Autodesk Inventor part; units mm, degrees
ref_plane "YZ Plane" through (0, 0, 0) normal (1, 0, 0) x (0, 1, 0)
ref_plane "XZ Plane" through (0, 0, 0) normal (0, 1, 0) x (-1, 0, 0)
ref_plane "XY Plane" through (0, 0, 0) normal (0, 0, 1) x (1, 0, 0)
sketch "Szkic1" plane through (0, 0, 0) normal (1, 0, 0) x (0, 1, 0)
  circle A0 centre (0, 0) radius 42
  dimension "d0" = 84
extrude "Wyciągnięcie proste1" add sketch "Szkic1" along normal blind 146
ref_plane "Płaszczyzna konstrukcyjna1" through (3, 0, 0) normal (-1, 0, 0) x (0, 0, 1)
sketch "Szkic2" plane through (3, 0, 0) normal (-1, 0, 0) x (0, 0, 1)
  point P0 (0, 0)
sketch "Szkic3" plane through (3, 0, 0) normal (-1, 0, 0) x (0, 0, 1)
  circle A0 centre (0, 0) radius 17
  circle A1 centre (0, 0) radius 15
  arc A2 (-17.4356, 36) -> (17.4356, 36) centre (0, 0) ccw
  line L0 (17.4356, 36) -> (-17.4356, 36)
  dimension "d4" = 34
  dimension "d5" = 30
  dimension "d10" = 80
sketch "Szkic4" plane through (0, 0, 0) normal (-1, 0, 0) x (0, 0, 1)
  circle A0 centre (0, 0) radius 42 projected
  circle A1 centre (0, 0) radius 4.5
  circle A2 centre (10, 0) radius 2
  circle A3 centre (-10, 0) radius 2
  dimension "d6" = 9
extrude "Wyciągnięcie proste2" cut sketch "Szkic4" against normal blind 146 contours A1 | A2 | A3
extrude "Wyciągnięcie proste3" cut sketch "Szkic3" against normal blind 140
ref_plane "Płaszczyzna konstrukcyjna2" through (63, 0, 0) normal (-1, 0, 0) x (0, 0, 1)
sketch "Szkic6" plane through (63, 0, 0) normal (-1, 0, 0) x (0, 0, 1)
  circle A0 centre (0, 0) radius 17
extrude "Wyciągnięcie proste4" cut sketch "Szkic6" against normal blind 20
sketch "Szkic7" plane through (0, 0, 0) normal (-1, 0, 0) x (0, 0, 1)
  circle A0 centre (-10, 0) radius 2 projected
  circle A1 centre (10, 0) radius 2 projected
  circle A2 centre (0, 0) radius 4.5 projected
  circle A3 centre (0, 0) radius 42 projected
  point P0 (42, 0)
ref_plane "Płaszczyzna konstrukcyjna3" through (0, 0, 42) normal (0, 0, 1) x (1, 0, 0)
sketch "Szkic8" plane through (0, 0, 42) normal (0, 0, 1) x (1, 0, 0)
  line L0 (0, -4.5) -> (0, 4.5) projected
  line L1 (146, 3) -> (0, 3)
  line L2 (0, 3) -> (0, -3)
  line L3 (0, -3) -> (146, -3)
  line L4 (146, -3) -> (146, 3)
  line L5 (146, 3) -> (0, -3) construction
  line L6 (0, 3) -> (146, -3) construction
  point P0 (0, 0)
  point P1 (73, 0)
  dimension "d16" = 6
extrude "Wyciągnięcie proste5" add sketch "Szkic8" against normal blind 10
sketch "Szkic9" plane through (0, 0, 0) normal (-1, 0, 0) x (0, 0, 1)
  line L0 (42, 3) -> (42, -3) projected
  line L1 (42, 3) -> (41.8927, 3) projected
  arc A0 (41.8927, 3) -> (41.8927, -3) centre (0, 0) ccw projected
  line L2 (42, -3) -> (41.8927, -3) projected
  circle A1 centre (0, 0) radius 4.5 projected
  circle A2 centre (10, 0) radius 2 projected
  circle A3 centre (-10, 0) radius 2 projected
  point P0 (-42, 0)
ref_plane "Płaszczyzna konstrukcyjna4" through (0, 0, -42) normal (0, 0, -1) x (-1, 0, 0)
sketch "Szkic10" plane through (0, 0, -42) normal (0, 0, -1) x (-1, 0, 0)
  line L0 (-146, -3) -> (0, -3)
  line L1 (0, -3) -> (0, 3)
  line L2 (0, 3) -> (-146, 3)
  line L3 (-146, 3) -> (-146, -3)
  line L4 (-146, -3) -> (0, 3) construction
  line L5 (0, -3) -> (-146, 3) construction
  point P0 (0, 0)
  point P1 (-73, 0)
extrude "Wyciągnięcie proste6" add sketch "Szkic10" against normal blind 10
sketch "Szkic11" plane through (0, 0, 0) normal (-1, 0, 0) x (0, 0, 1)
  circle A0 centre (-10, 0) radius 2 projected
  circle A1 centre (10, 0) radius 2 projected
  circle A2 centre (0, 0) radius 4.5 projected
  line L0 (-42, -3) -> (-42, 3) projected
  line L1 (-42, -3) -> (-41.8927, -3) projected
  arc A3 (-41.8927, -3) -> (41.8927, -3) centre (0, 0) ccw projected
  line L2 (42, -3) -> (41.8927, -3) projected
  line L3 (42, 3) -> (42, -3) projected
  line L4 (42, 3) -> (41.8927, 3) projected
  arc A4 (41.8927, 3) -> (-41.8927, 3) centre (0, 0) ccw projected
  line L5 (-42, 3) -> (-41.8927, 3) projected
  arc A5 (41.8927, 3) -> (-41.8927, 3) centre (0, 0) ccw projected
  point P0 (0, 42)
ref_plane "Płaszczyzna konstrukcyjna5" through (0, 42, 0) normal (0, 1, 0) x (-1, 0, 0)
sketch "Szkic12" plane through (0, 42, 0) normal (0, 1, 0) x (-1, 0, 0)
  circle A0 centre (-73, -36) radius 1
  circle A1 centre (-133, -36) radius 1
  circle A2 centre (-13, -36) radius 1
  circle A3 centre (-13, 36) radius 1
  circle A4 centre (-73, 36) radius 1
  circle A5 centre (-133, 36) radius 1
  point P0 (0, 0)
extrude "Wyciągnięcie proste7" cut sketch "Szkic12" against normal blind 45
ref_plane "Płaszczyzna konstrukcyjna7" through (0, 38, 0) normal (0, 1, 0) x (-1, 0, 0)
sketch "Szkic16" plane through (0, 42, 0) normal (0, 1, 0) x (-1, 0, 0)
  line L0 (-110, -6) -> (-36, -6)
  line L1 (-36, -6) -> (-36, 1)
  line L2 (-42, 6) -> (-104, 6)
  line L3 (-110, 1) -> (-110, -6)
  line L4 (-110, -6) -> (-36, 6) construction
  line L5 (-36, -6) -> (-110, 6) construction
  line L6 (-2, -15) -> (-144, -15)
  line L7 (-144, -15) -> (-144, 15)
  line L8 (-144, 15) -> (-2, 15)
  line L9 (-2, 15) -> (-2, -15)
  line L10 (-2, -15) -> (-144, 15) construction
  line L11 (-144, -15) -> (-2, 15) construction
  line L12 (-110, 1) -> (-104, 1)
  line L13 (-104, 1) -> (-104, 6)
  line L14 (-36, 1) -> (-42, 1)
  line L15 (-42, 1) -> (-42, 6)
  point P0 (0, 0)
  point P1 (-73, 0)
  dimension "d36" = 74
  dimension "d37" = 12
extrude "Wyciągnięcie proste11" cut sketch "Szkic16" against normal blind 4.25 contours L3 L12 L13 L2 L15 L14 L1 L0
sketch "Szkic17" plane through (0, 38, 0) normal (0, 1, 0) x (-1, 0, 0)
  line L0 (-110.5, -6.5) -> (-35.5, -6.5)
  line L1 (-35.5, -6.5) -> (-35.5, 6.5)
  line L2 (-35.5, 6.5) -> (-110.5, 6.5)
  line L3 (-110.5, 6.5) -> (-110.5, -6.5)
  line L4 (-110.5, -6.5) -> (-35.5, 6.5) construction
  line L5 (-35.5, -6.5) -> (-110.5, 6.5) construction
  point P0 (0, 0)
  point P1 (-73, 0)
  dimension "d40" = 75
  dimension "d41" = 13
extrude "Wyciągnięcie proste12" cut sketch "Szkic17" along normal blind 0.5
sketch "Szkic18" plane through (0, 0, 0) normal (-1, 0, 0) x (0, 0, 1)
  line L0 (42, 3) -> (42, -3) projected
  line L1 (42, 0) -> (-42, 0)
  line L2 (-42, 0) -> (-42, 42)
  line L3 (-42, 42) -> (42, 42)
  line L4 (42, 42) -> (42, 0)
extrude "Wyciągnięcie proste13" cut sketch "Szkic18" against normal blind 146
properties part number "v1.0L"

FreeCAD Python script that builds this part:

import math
import FreeCAD as App
import Part
import Sketcher
Q = App.Units.Quantity

doc = App.newDocument("Part")
params = doc.addObject("Spreadsheet::Sheet", "Params")
for row, (alias, value) in enumerate([
    ("sketch1_diameter", "84 mm"),
    ("pad1_length", "146 mm"),
    ("sketch2_diameter", "9 mm"),
    ("sketch2_diameter2", "4 mm"),
    ("pocket1_length", "146 mm"),
    ("sketch3_diameter", "30 mm"),
    ("sketch3_diameter2", "34 mm"),
    ("sketch3_radius", "40 mm"),
    ("pocket2_length", "140 mm"),
    ("sketch4_diameter", "34 mm"),
    ("pocket3_length", "20 mm"),
    ("sketch5_height", "6 mm"),
    ("sketch5_width", "146 mm"),
    ("pad2_length", "10 mm"),
    ("sketch6_width", "146 mm"),
    ("sketch6_height", "6 mm"),
    ("pad3_length", "10 mm"),
    ("sketch7_diameter", "2 mm"),
    ("pocket4_length", "45 mm"),
    ("sketch8_width", "74 mm"),
    ("sketch8_width2", "6 mm"),
    ("sketch8_height", "7 mm"),
    ("pocket5_length", "4.25 mm"),
    ("sketch9_width", "75 mm"),
    ("sketch9_height", "13 mm"),
    ("pocket6_length", "0.5 mm"),
    ("sketch10_width", "42 mm"),
    ("sketch10_height", "84 mm"),
    ("pocket7_length", "146 mm"),
], start=1):
    params.set(f"A{row}", alias)
    params.set(f"B{row}", "=" + value)
    params.setAlias(f"B{row}", alias)

body = doc.addObject("PartDesign::Body", "Body")

sketch1 = doc.addObject("Sketcher::SketchObject", "Sketch")
body.addObject(sketch1)
sketch1.AttachmentSupport = (doc.YZ_Plane, [""])
sketch1.MapMode = "FlatFace"
sketch1.addGeometry(Part.Circle(App.Vector(0, 0, 0), App.Vector(0, 0, 1), 42), False)
sketch1.addConstraint(Sketcher.Constraint("Coincident", 0, 3, -1, 1))
sketch1.addConstraint(Sketcher.Constraint("Diameter", 0, Q("84 mm")))
sketch1.setExpression("Constraints[1]", "Params.sketch1_diameter")
pad1 = doc.addObject("PartDesign::Pad", "Pad")
body.addObject(pad1)
pad1.Profile = sketch1
pad1.setExpression("Length", "Params.pad1_length")

sketch2 = doc.addObject("Sketcher::SketchObject", "Sketch001")
body.addObject(sketch2)
sketch2.AttachmentSupport = (doc.YZ_Plane, [""])
sketch2.MapMode = "FlatFace"
sketch2.addGeometry(Part.Circle(App.Vector(0, 0, 0), App.Vector(0, 0, 1), 4.5), False)
sketch2.addGeometry(Part.Circle(App.Vector(0, 10, 0), App.Vector(0, 0, 1), 2), False)
sketch2.addGeometry(Part.Circle(App.Vector(0, -10, 0), App.Vector(0, 0, 1), 2), False)
sketch2.addConstraint(Sketcher.Constraint("Coincident", 0, 3, -1, 1))
sketch2.addConstraint(Sketcher.Constraint("Equal", 1, 2))
sketch2.addConstraint(Sketcher.Constraint("Symmetric", 1, 3, 2, 3, -1, 1))
sketch2.addConstraint(Sketcher.Constraint("PointOnObject", 1, 3, -2))
sketch2.addConstraint(Sketcher.Constraint("Diameter", 0, Q("9 mm")))
sketch2.addConstraint(Sketcher.Constraint("Diameter", 1, Q("4 mm")))
sketch2.addConstraint(Sketcher.Constraint("DistanceY", -1, 1, 1, 3, Q("10 mm")))
sketch2.setExpression("Constraints[4]", "Params.sketch2_diameter")
sketch2.setExpression("Constraints[5]", "Params.sketch2_diameter2")
pocket1 = doc.addObject("PartDesign::Pocket", "Pocket")
body.addObject(pocket1)
pocket1.Profile = sketch2
pocket1.setExpression("Length", "Params.pocket1_length")
pocket1.Reversed = True

sketch3 = doc.addObject("Sketcher::SketchObject", "Sketch002")
body.addObject(sketch3)
sketch3.AttachmentSupport = (doc.YZ_Plane, [""])
sketch3.MapMode = "FlatFace"
sketch3.AttachmentOffset = App.Placement(App.Vector(0, 0, 3), App.Rotation())
sketch3.addGeometry(Part.Circle(App.Vector(0, 0, 0), App.Vector(0, 0, 1), 15), False)
sketch3.addGeometry(Part.LineSegment(App.Vector(36, 17, 0), App.Vector(36, -17, 0)), False)
sketch3.addGeometry(Part.ArcOfCircle(Part.Circle(App.Vector(0, 0, 0), App.Vector(0, 0, 1), 40), math.radians(26), math.radians(334)), False)
sketch3.addGeometry(Part.Circle(App.Vector(0, 0, 0), App.Vector(0, 0, 1), 17), False)
sketch3.addConstraint(Sketcher.Constraint("Coincident", 1, 1, 2, 1))
sketch3.addConstraint(Sketcher.Constraint("Coincident", 2, 2, 1, 2))
sketch3.addConstraint(Sketcher.Constraint("Vertical", 1))
sketch3.addConstraint(Sketcher.Constraint("Coincident", 0, 3, -1, 1))
sketch3.addConstraint(Sketcher.Constraint("Coincident", 2, 3, -1, 1))
sketch3.addConstraint(Sketcher.Constraint("Coincident", 3, 3, -1, 1))
sketch3.addConstraint(Sketcher.Constraint("Diameter", 0, Q("30 mm")))
sketch3.addConstraint(Sketcher.Constraint("Diameter", 3, Q("34 mm")))
sketch3.addConstraint(Sketcher.Constraint("Radius", 2, Q("40 mm")))
sketch3.addConstraint(Sketcher.Constraint("DistanceX", -1, 1, 1, 1, Q("36 mm")))
sketch3.setExpression("Constraints[6]", "Params.sketch3_diameter")
sketch3.setExpression("Constraints[7]", "Params.sketch3_diameter2")
sketch3.setExpression("Constraints[8]", "Params.sketch3_radius")
pocket2 = doc.addObject("PartDesign::Pocket", "Pocket001")
body.addObject(pocket2)
pocket2.Profile = sketch3
pocket2.setExpression("Length", "Params.pocket2_length")
pocket2.Reversed = True

sketch4 = doc.addObject("Sketcher::SketchObject", "Sketch003")
body.addObject(sketch4)
sketch4.AttachmentSupport = (doc.YZ_Plane, [""])
sketch4.MapMode = "FlatFace"
sketch4.AttachmentOffset = App.Placement(App.Vector(0, 0, 63), App.Rotation())
sketch4.addGeometry(Part.Circle(App.Vector(0, 0, 0), App.Vector(0, 0, 1), 17), False)
sketch4.addConstraint(Sketcher.Constraint("Coincident", 0, 3, -1, 1))
sketch4.addConstraint(Sketcher.Constraint("Diameter", 0, Q("34 mm")))
sketch4.setExpression("Constraints[1]", "Params.sketch4_diameter")
pocket3 = doc.addObject("PartDesign::Pocket", "Pocket002")
body.addObject(pocket3)
pocket3.Profile = sketch4
pocket3.setExpression("Length", "Params.pocket3_length")
pocket3.Reversed = True

sketch5 = doc.addObject("Sketcher::SketchObject", "Sketch004")
body.addObject(sketch5)
sketch5.AttachmentSupport = (doc.XY_Plane, [""])
sketch5.MapMode = "FlatFace"
sketch5.AttachmentOffset = App.Placement(App.Vector(0, 0, 42), App.Rotation())
sketch5.addGeometry(Part.LineSegment(App.Vector(0, 3, 0), App.Vector(0, -3, 0)), False)
sketch5.addGeometry(Part.LineSegment(App.Vector(0, -3, 0), App.Vector(146, -3, 0)), False)
sketch5.addGeometry(Part.LineSegment(App.Vector(146, -3, 0), App.Vector(146, 3, 0)), False)
sketch5.addGeometry(Part.LineSegment(App.Vector(146, 3, 0), App.Vector(0, 3, 0)), False)
sketch5.addConstraint(Sketcher.Constraint("Coincident", 0, 2, 1, 1))
sketch5.addConstraint(Sketcher.Constraint("Coincident", 1, 2, 2, 1))
sketch5.addConstraint(Sketcher.Constraint("Coincident", 2, 2, 3, 1))
sketch5.addConstraint(Sketcher.Constraint("Coincident", 3, 2, 0, 1))
sketch5.addConstraint(Sketcher.Constraint("Vertical", 0))
sketch5.addConstraint(Sketcher.Constraint("Horizontal", 1))
sketch5.addConstraint(Sketcher.Constraint("Vertical", 2))
sketch5.addConstraint(Sketcher.Constraint("Horizontal", 3))
sketch5.addConstraint(Sketcher.Constraint("Symmetric", 0, 2, 3, 2, -1, 1))
sketch5.addConstraint(Sketcher.Constraint("DistanceY", 0, 2, 0, 1, Q("6 mm")))
sketch5.addConstraint(Sketcher.Constraint("DistanceX", 1, 1, 1, 2, Q("146 mm")))
sketch5.setExpression("Constraints[9]", "Params.sketch5_height")
sketch5.setExpression("Constraints[10]", "Params.sketch5_width")
pad2 = doc.addObject("PartDesign::Pad", "Pad001")
body.addObject(pad2)
pad2.Profile = sketch5
pad2.setExpression("Length", "Params.pad2_length")
pad2.Reversed = True

sketch6 = doc.addObject("Sketcher::SketchObject", "Sketch005")
body.addObject(sketch6)
sketch6.AttachmentSupport = (doc.XY_Plane, [""])
sketch6.MapMode = "FlatFace"
sketch6.AttachmentOffset = App.Placement(App.Vector(0, 0, -42), App.Rotation())
sketch6.addGeometry(Part.LineSegment(App.Vector(146, 3, 0), App.Vector(146, -3, 0)), False)
sketch6.addGeometry(Part.LineSegment(App.Vector(146, -3, 0), App.Vector(0, -3, 0)), False)
sketch6.addGeometry(Part.LineSegment(App.Vector(0, -3, 0), App.Vector(0, 3, 0)), False)
sketch6.addGeometry(Part.LineSegment(App.Vector(0, 3, 0), App.Vector(146, 3, 0)), False)
sketch6.addConstraint(Sketcher.Constraint("Coincident", 0, 2, 1, 1))
sketch6.addConstraint(Sketcher.Constraint("Coincident", 1, 2, 2, 1))
sketch6.addConstraint(Sketcher.Constraint("Coincident", 2, 2, 3, 1))
sketch6.addConstraint(Sketcher.Constraint("Coincident", 3, 2, 0, 1))
sketch6.addConstraint(Sketcher.Constraint("Vertical", 0))
sketch6.addConstraint(Sketcher.Constraint("Horizontal", 1))
sketch6.addConstraint(Sketcher.Constraint("Vertical", 2))
sketch6.addConstraint(Sketcher.Constraint("Horizontal", 3))
sketch6.addConstraint(Sketcher.Constraint("Symmetric", 1, 2, 2, 2, -1, 1))
sketch6.addConstraint(Sketcher.Constraint("DistanceX", 1, 2, 1, 1, Q("146 mm")))
sketch6.addConstraint(Sketcher.Constraint("DistanceY", 0, 2, 0, 1, Q("6 mm")))
sketch6.setExpression("Constraints[9]", "Params.sketch6_width")
sketch6.setExpression("Constraints[10]", "Params.sketch6_height")
pad3 = doc.addObject("PartDesign::Pad", "Pad002")
body.addObject(pad3)
pad3.Profile = sketch6
pad3.setExpression("Length", "Params.pad3_length")

sketch7 = doc.addObject("Sketcher::SketchObject", "Sketch006")
body.addObject(sketch7)
sketch7.AttachmentSupport = (doc.XZ_Plane, [""])
sketch7.MapMode = "FlatFace"
sketch7.AttachmentOffset = App.Placement(App.Vector(0, 0, -42), App.Rotation())
sketch7.addGeometry(Part.Circle(App.Vector(73, -36, 0), App.Vector(0, 0, 1), 1), False)
sketch7.addGeometry(Part.Circle(App.Vector(133, -36, 0), App.Vector(0, 0, 1), 1), False)
sketch7.addGeometry(Part.Circle(App.Vector(13, -36, 0), App.Vector(0, 0, 1), 1), False)
sketch7.addGeometry(Part.Circle(App.Vector(13, 36, 0), App.Vector(0, 0, 1), 1), False)
sketch7.addGeometry(Part.Circle(App.Vector(73, 36, 0), App.Vector(0, 0, 1), 1), False)
sketch7.addGeometry(Part.Circle(App.Vector(133, 36, 0), App.Vector(0, 0, 1), 1), False)
sketch7.addConstraint(Sketcher.Constraint("Equal", 0, 1))
sketch7.addConstraint(Sketcher.Constraint("Equal", 1, 2))
sketch7.addConstraint(Sketcher.Constraint("Equal", 2, 3))
sketch7.addConstraint(Sketcher.Constraint("Equal", 3, 4))
sketch7.addConstraint(Sketcher.Constraint("Equal", 4, 5))
sketch7.addConstraint(Sketcher.Constraint("Symmetric", 2, 3, 3, 3, -1))
sketch7.addConstraint(Sketcher.Constraint("Symmetric", 0, 3, 4, 3, -1))
sketch7.addConstraint(Sketcher.Constraint("Symmetric", 1, 3, 5, 3, -1))
sketch7.addConstraint(Sketcher.Constraint("Horizontal", 0, 3, 1, 3))
sketch7.addConstraint(Sketcher.Constraint("Horizontal", 1, 3, 2, 3))
sketch7.addConstraint(Sketcher.Constraint("Diameter", 0, Q("2 mm")))
sketch7.addConstraint(Sketcher.Constraint("DistanceX", -1, 1, 0, 3, Q("73 mm")))
sketch7.addConstraint(Sketcher.Constraint("DistanceY", 0, 3, -1, 1, Q("36 mm")))
sketch7.addConstraint(Sketcher.Constraint("DistanceX", -1, 1, 1, 3, Q("133 mm")))
sketch7.addConstraint(Sketcher.Constraint("DistanceX", -1, 1, 2, 3, Q("13 mm")))
sketch7.setExpression("Constraints[10]", "Params.sketch7_diameter")
pocket4 = doc.addObject("PartDesign::Pocket", "Pocket003")
body.addObject(pocket4)
pocket4.Profile = sketch7
pocket4.setExpression("Length", "Params.pocket4_length")
pocket4.Reversed = True

sketch8 = doc.addObject("Sketcher::SketchObject", "Sketch007")
body.addObject(sketch8)
sketch8.AttachmentSupport = (doc.XZ_Plane, [""])
sketch8.MapMode = "FlatFace"
sketch8.AttachmentOffset = App.Placement(App.Vector(0, 0, -42), App.Rotation())
sketch8.addGeometry(Part.LineSegment(App.Vector(110, 1, 0), App.Vector(110, -6, 0)), False)
sketch8.addGeometry(Part.LineSegment(App.Vector(110, -6, 0), App.Vector(36, -6, 0)), False)
sketch8.addGeometry(Part.LineSegment(App.Vector(36, -6, 0), App.Vector(36, 1, 0)), False)
sketch8.addGeometry(Part.LineSegment(App.Vector(36, 1, 0), App.Vector(42, 1, 0)), False)
sketch8.addGeometry(Part.LineSegment(App.Vector(42, 1, 0), App.Vector(42, 6, 0)), False)
sketch8.addGeometry(Part.LineSegment(App.Vector(42, 6, 0), App.Vector(104, 6, 0)), False)
sketch8.addGeometry(Part.LineSegment(App.Vector(104, 6, 0), App.Vector(104, 1, 0)), False)
sketch8.addGeometry(Part.LineSegment(App.Vector(104, 1, 0), App.Vector(110, 1, 0)), False)
sketch8.addConstraint(Sketcher.Constraint("Coincident", 0, 2, 1, 1))
sketch8.addConstraint(Sketcher.Constraint("Coincident", 1, 2, 2, 1))
sketch8.addConstraint(Sketcher.Constraint("Coincident", 2, 2, 3, 1))
sketch8.addConstraint(Sketcher.Constraint("Coincident", 3, 2, 4, 1))
sketch8.addConstraint(Sketcher.Constraint("Coincident", 4, 2, 5, 1))
sketch8.addConstraint(Sketcher.Constraint("Coincident", 5, 2, 6, 1))
sketch8.addConstraint(Sketcher.Constraint("Coincident", 6, 2, 7, 1))
sketch8.addConstraint(Sketcher.Constraint("Coincident", 7, 2, 0, 1))
sketch8.addConstraint(Sketcher.Constraint("Vertical", 0))
sketch8.addConstraint(Sketcher.Constraint("Horizontal", 1))
sketch8.addConstraint(Sketcher.Constraint("Vertical", 2))
sketch8.addConstraint(Sketcher.Constraint("Horizontal", 3))
sketch8.addConstraint(Sketcher.Constraint("Vertical", 4))
sketch8.addConstraint(Sketcher.Constraint("Horizontal", 5))
sketch8.addConstraint(Sketcher.Constraint("Vertical", 6))
sketch8.addConstraint(Sketcher.Constraint("Horizontal", 7))
sketch8.addConstraint(Sketcher.Constraint("Horizontal", 3, 2, 6, 2))
sketch8.addConstraint(Sketcher.Constraint("Equal", 3, 7))
sketch8.addConstraint(Sketcher.Constraint("DistanceX", 1, 2, 1, 1, Q("74 mm")))
sketch8.addConstraint(Sketcher.Constraint("DistanceY", 1, 2, 4, 2, Q("12 mm")))
sketch8.addConstraint(Sketcher.Constraint("DistanceX", 3, 1, 3, 2, Q("6 mm")))
sketch8.addConstraint(Sketcher.Constraint("DistanceY", 0, 2, 0, 1, Q("7 mm")))
sketch8.addConstraint(Sketcher.Constraint("DistanceX", -1, 1, 0, 2, Q("110 mm")))
sketch8.addConstraint(Sketcher.Constraint("DistanceY", 0, 2, -1, 1, Q("6 mm")))
sketch8.setExpression("Constraints[18]", "Params.sketch8_width")
sketch8.setExpression("Constraints[20]", "Params.sketch8_width2")
sketch8.setExpression("Constraints[21]", "Params.sketch8_height")
pocket5 = doc.addObject("PartDesign::Pocket", "Pocket004")
body.addObject(pocket5)
pocket5.Profile = sketch8
pocket5.setExpression("Length", "Params.pocket5_length")
pocket5.Reversed = True

sketch9 = doc.addObject("Sketcher::SketchObject", "Sketch008")
body.addObject(sketch9)
sketch9.AttachmentSupport = (doc.XZ_Plane, [""])
sketch9.MapMode = "FlatFace"
sketch9.AttachmentOffset = App.Placement(App.Vector(0, 0, -38), App.Rotation())
sketch9.addGeometry(Part.LineSegment(App.Vector(110, 6, 0), App.Vector(110, -6, 0)), False)
sketch9.addGeometry(Part.LineSegment(App.Vector(110, -6, 0), App.Vector(36, -6, 0)), False)
sketch9.addGeometry(Part.LineSegment(App.Vector(36, -6, 0), App.Vector(36, 6, 0)), False)
sketch9.addGeometry(Part.LineSegment(App.Vector(36, 6, 0), App.Vector(110, 6, 0)), False)
sketch9.addConstraint(Sketcher.Constraint("Coincident", 0, 2, 1, 1))
sketch9.addConstraint(Sketcher.Constraint("Coincident", 1, 2, 2, 1))
sketch9.addConstraint(Sketcher.Constraint("Coincident", 2, 2, 3, 1))
sketch9.addConstraint(Sketcher.Constraint("Coincident", 3, 2, 0, 1))
sketch9.addConstraint(Sketcher.Constraint("Vertical", 0))
sketch9.addConstraint(Sketcher.Constraint("Horizontal", 1))
sketch9.addConstraint(Sketcher.Constraint("Vertical", 2))
sketch9.addConstraint(Sketcher.Constraint("Horizontal", 3))
sketch9.addConstraint(Sketcher.Constraint("DistanceX", 1, 2, 1, 1, Q("75 mm")))
sketch9.addConstraint(Sketcher.Constraint("DistanceY", 0, 2, 0, 1, Q("13 mm")))
sketch9.addConstraint(Sketcher.Constraint("DistanceX", -1, 1, 0, 2, Q("110.5 mm")))
sketch9.addConstraint(Sketcher.Constraint("DistanceY", 0, 2, -1, 1, Q("6.5 mm")))
sketch9.setExpression("Constraints[8]", "Params.sketch9_width")
sketch9.setExpression("Constraints[9]", "Params.sketch9_height")
pocket6 = doc.addObject("PartDesign::Pocket", "Pocket005")
body.addObject(pocket6)
pocket6.Profile = sketch9
pocket6.setExpression("Length", "Params.pocket6_length")

sketch10 = doc.addObject("Sketcher::SketchObject", "Sketch009")
body.addObject(sketch10)
sketch10.AttachmentSupport = (doc.YZ_Plane, [""])
sketch10.MapMode = "FlatFace"
sketch10.addGeometry(Part.LineSegment(App.Vector(0, 42, 0), App.Vector(42, 42, 0)), False)
sketch10.addGeometry(Part.LineSegment(App.Vector(42, 42, 0), App.Vector(42, -42, 0)), False)
sketch10.addGeometry(Part.LineSegment(App.Vector(42, -42, 0), App.Vector(0, -42, 0)), False)
sketch10.addGeometry(Part.LineSegment(App.Vector(0, -42, 0), App.Vector(0, 42, 0)), False)
sketch10.addConstraint(Sketcher.Constraint("Coincident", 0, 2, 1, 1))
sketch10.addConstraint(Sketcher.Constraint("Coincident", 1, 2, 2, 1))
sketch10.addConstraint(Sketcher.Constraint("Coincident", 2, 2, 3, 1))
sketch10.addConstraint(Sketcher.Constraint("Coincident", 3, 2, 0, 1))
sketch10.addConstraint(Sketcher.Constraint("Horizontal", 0))
sketch10.addConstraint(Sketcher.Constraint("Vertical", 1))
sketch10.addConstraint(Sketcher.Constraint("Horizontal", 2))
sketch10.addConstraint(Sketcher.Constraint("Vertical", 3))
sketch10.addConstraint(Sketcher.Constraint("Symmetric", 2, 2, 3, 2, -1, 1))
sketch10.addConstraint(Sketcher.Constraint("DistanceX", 0, 1, 0, 2, Q("42 mm")))
sketch10.addConstraint(Sketcher.Constraint("DistanceY", 1, 2, 1, 1, Q("84 mm")))
sketch10.setExpression("Constraints[9]", "Params.sketch10_width")
sketch10.setExpression("Constraints[10]", "Params.sketch10_height")
pocket7 = doc.addObject("PartDesign::Pocket", "Pocket006")
body.addObject(pocket7)
pocket7.Profile = sketch10
pocket7.setExpression("Length", "Params.pocket7_length")
pocket7.Reversed = True

doc.recompute()
